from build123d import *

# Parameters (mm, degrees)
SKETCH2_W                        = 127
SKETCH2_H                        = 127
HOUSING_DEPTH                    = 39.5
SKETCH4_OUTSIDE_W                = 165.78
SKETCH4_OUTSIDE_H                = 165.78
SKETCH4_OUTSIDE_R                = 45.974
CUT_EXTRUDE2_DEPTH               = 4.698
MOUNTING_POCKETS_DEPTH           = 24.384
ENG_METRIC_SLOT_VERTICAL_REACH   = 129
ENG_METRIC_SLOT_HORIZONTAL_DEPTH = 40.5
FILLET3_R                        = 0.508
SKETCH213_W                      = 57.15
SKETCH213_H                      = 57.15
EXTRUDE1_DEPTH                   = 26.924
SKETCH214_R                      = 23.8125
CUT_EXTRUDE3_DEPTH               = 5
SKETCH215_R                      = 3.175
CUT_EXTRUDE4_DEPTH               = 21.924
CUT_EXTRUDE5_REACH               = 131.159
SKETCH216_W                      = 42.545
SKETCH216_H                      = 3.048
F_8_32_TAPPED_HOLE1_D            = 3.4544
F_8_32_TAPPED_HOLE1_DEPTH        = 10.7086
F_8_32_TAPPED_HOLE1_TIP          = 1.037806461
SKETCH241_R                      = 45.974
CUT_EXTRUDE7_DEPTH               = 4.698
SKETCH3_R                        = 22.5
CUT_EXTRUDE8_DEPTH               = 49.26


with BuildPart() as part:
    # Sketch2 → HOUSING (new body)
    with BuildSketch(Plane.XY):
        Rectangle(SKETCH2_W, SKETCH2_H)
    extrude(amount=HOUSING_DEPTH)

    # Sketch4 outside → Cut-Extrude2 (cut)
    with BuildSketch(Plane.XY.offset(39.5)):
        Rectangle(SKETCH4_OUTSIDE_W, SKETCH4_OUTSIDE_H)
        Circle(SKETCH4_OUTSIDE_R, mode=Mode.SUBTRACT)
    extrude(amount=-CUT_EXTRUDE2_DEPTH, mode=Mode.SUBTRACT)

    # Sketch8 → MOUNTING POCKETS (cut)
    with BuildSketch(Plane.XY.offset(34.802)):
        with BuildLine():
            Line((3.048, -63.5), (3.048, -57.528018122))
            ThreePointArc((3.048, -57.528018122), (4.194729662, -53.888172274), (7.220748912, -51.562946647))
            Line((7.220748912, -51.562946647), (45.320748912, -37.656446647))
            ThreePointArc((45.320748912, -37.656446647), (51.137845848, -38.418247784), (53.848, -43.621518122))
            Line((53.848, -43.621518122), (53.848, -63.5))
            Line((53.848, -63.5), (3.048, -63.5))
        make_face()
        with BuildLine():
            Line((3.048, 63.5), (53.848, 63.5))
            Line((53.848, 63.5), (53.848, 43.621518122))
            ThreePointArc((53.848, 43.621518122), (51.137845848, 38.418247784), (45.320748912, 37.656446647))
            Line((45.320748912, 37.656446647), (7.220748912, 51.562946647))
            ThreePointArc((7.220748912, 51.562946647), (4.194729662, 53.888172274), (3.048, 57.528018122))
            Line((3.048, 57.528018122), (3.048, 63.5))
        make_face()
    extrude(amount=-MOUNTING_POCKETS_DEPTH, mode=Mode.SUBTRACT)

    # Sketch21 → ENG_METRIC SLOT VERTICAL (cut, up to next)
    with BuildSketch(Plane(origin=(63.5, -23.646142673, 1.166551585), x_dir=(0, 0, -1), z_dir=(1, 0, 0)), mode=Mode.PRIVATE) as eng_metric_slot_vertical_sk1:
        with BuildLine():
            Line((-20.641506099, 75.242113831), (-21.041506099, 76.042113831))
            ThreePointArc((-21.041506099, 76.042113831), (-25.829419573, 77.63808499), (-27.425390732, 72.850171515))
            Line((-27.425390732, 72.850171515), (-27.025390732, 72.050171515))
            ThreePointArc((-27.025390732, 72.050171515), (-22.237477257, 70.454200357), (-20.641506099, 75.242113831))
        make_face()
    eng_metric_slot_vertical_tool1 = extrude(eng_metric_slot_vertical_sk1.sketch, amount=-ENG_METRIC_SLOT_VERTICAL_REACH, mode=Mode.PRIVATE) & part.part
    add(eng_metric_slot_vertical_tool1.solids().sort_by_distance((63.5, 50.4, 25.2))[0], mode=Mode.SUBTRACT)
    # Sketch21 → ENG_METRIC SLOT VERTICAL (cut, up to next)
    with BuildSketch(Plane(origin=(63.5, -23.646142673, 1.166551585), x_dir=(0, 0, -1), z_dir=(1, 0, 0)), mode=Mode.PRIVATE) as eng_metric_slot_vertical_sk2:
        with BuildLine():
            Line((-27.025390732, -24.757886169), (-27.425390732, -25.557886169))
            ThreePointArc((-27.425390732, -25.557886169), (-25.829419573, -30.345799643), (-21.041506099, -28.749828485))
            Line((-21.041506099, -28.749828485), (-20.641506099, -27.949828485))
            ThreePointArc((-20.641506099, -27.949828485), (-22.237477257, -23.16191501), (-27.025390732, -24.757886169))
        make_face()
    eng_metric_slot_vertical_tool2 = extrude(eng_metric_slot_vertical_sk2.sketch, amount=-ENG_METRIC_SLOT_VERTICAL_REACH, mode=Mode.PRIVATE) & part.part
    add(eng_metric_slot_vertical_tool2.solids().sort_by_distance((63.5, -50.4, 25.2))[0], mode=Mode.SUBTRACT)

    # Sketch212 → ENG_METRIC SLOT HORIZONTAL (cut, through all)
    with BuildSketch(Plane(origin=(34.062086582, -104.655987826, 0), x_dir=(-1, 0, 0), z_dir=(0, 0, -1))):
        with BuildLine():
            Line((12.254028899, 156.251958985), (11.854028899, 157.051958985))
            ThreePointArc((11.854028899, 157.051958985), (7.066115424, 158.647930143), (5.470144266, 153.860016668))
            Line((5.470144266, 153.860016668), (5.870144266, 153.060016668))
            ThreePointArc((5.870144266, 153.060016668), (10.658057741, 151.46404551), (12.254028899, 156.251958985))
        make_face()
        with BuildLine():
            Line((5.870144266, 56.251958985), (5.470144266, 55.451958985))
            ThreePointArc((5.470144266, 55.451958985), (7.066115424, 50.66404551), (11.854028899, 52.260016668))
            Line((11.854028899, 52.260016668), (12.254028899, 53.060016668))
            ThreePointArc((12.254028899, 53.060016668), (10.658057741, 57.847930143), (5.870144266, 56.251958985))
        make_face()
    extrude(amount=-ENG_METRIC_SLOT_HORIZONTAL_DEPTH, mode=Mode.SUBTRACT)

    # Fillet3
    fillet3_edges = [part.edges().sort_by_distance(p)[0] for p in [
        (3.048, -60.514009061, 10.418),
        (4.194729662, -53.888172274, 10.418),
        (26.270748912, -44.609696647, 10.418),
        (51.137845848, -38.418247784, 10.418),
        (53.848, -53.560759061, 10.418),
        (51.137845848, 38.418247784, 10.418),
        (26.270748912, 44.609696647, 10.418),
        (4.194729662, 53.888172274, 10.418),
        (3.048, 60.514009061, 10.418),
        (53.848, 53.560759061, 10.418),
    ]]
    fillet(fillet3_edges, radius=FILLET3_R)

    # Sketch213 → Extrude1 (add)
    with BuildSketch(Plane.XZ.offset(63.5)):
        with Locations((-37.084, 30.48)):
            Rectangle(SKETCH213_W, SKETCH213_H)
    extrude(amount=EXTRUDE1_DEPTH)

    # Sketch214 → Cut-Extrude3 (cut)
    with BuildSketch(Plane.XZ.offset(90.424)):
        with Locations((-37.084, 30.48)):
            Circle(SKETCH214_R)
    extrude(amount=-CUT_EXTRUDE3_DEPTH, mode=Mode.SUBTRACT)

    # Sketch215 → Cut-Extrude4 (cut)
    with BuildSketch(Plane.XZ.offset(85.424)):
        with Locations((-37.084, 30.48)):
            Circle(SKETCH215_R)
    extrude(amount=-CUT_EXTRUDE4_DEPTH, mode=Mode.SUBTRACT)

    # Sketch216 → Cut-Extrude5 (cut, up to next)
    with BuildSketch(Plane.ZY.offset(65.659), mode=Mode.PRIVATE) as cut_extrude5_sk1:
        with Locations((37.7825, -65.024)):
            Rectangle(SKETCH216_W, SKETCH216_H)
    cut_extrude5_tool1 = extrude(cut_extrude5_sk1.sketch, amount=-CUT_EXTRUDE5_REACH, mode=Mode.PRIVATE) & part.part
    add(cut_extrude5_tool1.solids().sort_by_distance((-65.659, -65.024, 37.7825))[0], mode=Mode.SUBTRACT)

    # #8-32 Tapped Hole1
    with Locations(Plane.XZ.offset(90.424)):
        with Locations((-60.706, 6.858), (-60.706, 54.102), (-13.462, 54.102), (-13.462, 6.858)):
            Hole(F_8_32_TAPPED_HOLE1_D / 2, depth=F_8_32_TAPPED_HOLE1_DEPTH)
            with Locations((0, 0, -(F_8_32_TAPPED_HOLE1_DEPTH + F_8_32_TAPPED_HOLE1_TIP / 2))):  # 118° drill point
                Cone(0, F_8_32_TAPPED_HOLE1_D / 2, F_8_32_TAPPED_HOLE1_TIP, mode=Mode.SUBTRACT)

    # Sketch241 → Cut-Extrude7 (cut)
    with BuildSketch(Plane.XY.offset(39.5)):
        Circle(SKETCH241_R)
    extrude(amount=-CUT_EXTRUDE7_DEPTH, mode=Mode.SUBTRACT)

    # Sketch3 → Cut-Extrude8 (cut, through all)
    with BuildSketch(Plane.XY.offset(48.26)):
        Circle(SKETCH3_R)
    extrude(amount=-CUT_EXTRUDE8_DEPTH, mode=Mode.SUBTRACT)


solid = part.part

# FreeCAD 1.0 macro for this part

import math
import FreeCAD as App
import Part
import Sketcher

V = App.Vector
Q = App.Units.Quantity


def edges_at(feature, points):
    """Names of the edges that pass closest to the given points."""
    edges = feature.Shape.Edges
    near = lambda p: min(range(len(edges)), key=lambda i: edges[i].distToShape(Part.Vertex(*p))[0])
    return sorted({f"Edge{near(p) + 1}" for p in points})

doc = App.newDocument("Part")
body = doc.addObject("PartDesign::Body", "Body")

# Sketch on XY plane
sketch1 = doc.addObject("Sketcher::SketchObject", "Sketch")
body.addObject(sketch1)
sketch1.AttachmentSupport = (doc.XY_Plane, [""])
sketch1.MapMode = "FlatFace"
sketch1.addGeometry([
    Part.LineSegment(V(-64, 64, 0), V(-64, -64, 0)),
    Part.LineSegment(V(-64, -64, 0), V(64, -64, 0)),
    Part.LineSegment(V(64, -64, 0), V(64, 64, 0)),
    Part.LineSegment(V(64, 64, 0), V(-64, 64, 0)),
], False)
sketch1.addConstraint([
    Sketcher.Constraint("Coincident", 0, 2, 1, 1),
    Sketcher.Constraint("Coincident", 1, 2, 2, 1),
    Sketcher.Constraint("Coincident", 2, 2, 3, 1),
    Sketcher.Constraint("Coincident", 3, 2, 0, 1),
    Sketcher.Constraint("Vertical", 0),
    Sketcher.Constraint("Horizontal", 1),
    Sketcher.Constraint("Vertical", 2),
    Sketcher.Constraint("Horizontal", 3),
    Sketcher.Constraint("Symmetric", 0, 2, 2, 2, -1, 1),
    Sketcher.Constraint("Equal", 3, 0),
    Sketcher.Constraint("DistanceX", 1, 1, 1, 2, Q("5 in")),
])
pad1 = doc.addObject("PartDesign::Pad", "Pad")
body.addObject(pad1)
pad1.Profile = sketch1
pad1.Length = 39.5

# Sketch on XY plane
sketch2 = doc.addObject("Sketcher::SketchObject", "Sketch001")
body.addObject(sketch2)
sketch2.AttachmentSupport = (doc.XY_Plane, [""])
sketch2.MapMode = "FlatFace"
sketch2.AttachmentOffset = App.Placement(V(0, 0, 39.5), App.Rotation())
sketch2.addGeometry([
    Part.LineSegment(V(-83, 83, 0), V(-83, -83, 0)),  # 0
    Part.LineSegment(V(-83, -83, 0), V(83, -83, 0)),  # 1
    Part.LineSegment(V(83, -83, 0), V(83, 83, 0)),  # 2
    Part.LineSegment(V(83, 83, 0), V(-83, 83, 0)),  # 3
    Part.Circle(V(0, 0, 0), V(0, 0, 1), 46),  # 4
], False)
sketch2.addConstraint([
    Sketcher.Constraint("Coincident", 0, 2, 1, 1),
    Sketcher.Constraint("Coincident", 1, 2, 2, 1),
    Sketcher.Constraint("Coincident", 2, 2, 3, 1),
    Sketcher.Constraint("Coincident", 3, 2, 0, 1),
    Sketcher.Constraint("Vertical", 0),
    Sketcher.Constraint("Horizontal", 1),
    Sketcher.Constraint("Vertical", 2),
    Sketcher.Constraint("Horizontal", 3),
    Sketcher.Constraint("Coincident", 4, 3, -1, 1),
    Sketcher.Constraint("Symmetric", 0, 2, 2, 2, -1, 1),
    Sketcher.Constraint("Equal", 3, 0),
    Sketcher.Constraint("Diameter", 4, Q("3.62 in")),
    Sketcher.Constraint("DistanceX", 1, 1, 1, 2, Q("165.78 mm")),
])
pocket1 = doc.addObject("PartDesign::Pocket", "Pocket")
body.addObject(pocket1)
pocket1.Profile = sketch2
pocket1.Length = 4.698

# Sketch on XY plane
sketch3 = doc.addObject("Sketcher::SketchObject", "Sketch002")
body.addObject(sketch3)
sketch3.AttachmentSupport = (doc.XY_Plane, [""])
sketch3.MapMode = "FlatFace"
sketch3.AttachmentOffset = App.Placement(V(0, 0, 34.802), App.Rotation())
sketch3.addGeometry([
    Part.LineSegment(V(3, -58, 0), V(3, -64, 0)),  # 0
    Part.LineSegment(V(3, -64, 0), V(54, -64, 0)),  # 1
    Part.LineSegment(V(54, -64, 0), V(54, -44, 0)),  # 2
    Part.ArcOfCircle(Part.Circle(V(47, -44, 0), V(0, 0, 1), 6), math.radians(0), math.radians(110)),  # 3
    Part.LineSegment(V(45, -38, 0), V(7, -52, 0)),  # 4
    Part.ArcOfCircle(Part.Circle(V(9, -58, 0), V(0, 0, 1), 6), math.radians(110), math.radians(180)),  # 5
    Part.LineSegment(V(54, 64, 0), V(3, 64, 0)),  # 6
    Part.LineSegment(V(3, 64, 0), V(3, 58, 0)),  # 7
    Part.ArcOfCircle(Part.Circle(V(9, 58, 0), V(0, 0, 1), 6), math.radians(180), math.radians(250)),  # 8
    Part.LineSegment(V(7, 52, 0), V(45, 38, 0)),  # 9
    Part.ArcOfCircle(Part.Circle(V(47, 44, 0), V(0, 0, 1), 6), math.radians(-110), math.radians(0)),  # 10
    Part.LineSegment(V(54, 44, 0), V(54, 64, 0)),  # 11
], False)
sketch3.addConstraint([
    Sketcher.Constraint("Coincident", 0, 2, 1, 1),
    Sketcher.Constraint("Coincident", 1, 2, 2, 1),
    Sketcher.Constraint("Tangent", 2, 2, 3, 1),
    Sketcher.Constraint("Tangent", 3, 2, 4, 1),
    Sketcher.Constraint("Tangent", 4, 2, 5, 1),
    Sketcher.Constraint("Tangent", 5, 2, 0, 1),
    Sketcher.Constraint("Coincident", 6, 2, 7, 1),
    Sketcher.Constraint("Tangent", 7, 2, 8, 1),
    Sketcher.Constraint("Tangent", 8, 2, 9, 1),
    Sketcher.Constraint("Tangent", 9, 2, 10, 1),
    Sketcher.Constraint("Tangent", 10, 2, 11, 1),
    Sketcher.Constraint("Coincident", 11, 2, 6, 1),
    Sketcher.Constraint("Vertical", 0),
    Sketcher.Constraint("Horizontal", 1),
    Sketcher.Constraint("Vertical", 2),
    Sketcher.Constraint("Horizontal", 6),
    Sketcher.Constraint("Vertical", 7),
    Sketcher.Constraint("Vertical", 11),
    Sketcher.Constraint("Equal", 3, 5),
    Sketcher.Constraint("Equal", 5, 8),
    Sketcher.Constraint("Equal", 8, 10),
    Sketcher.Constraint("Symmetric", 5, 3, 8, 3, -1),
    Sketcher.Constraint("Symmetric", 3, 3, 10, 3, -1),
    Sketcher.Constraint("Equal", 0, 7),
    Sketcher.Constraint("DistanceX", 1, 1, 1, 2, Q("2 in")),
    Sketcher.Constraint("Radius", 3, Q("0.25 in")),
    Sketcher.Constraint("DistanceY", 0, 2, -1, 1, Q("2.5 in")),
    Sketcher.Constraint("DistanceX", -1, 1, 3, 3, Q("1.87 in")),
    Sketcher.Constraint("DistanceY", 5, 3, 3, 3, Q("0.5475 in")),
    Sketcher.Constraint("DistanceY", 0, 2, 0, 1, Q("5.971982 mm")),
])
pocket2 = doc.addObject("PartDesign::Pocket", "Pocket001")
body.addObject(pocket2)
pocket2.Profile = sketch3
pocket2.Length = Q("0.96 in")

# Sketch on YZ plane
sketch4 = doc.addObject("Sketcher::SketchObject", "Sketch003")
body.addObject(sketch4)
sketch4.AttachmentSupport = (doc.YZ_Plane, [""])
sketch4.MapMode = "FlatFace"
sketch4.AttachmentOffset = App.Placement(V(0, 0, 2.5 * 25.4), App.Rotation())
sketch4.addGeometry([
    Part.LineSegment(V(51.6, 21.8, 0), V(52.4, 22.2, 0)),
    Part.ArcOfCircle(Part.Circle(V(50.8, 25.4, 0), V(0, 0, 1), 3.6), math.radians(-63), math.radians(117)),
    Part.LineSegment(V(49.2, 28.6, 0), V(48.4, 28.2, 0)),
    Part.ArcOfCircle(Part.Circle(V(50, 25, 0), V(0, 0, 1), 3.6), math.radians(117), math.radians(297)),
], False)
sketch4.addConstraint([
    Sketcher.Constraint("Tangent", 0, 2, 1, 1),
    Sketcher.Constraint("Tangent", 1, 2, 2, 1),
    Sketcher.Constraint("Tangent", 2, 2, 3, 1),
    Sketcher.Constraint("Tangent", 3, 2, 0, 1),
    Sketcher.Constraint("Equal", 1, 3),
    Sketcher.Constraint("DistanceX", -1, 1, 1, 3, Q("2 in")),
    Sketcher.Constraint("DistanceY", -1, 1, 1, 3, Q("1 in")),
    Sketcher.Constraint("Radius", 1, Q("0.1405 in")),
    Sketcher.Constraint("DistanceX", -1, 1, 3, 3, Q("50 mm")),
    Sketcher.Constraint("DistanceY", -1, 1, 3, 3, Q("25 mm")),
])
pocket3 = doc.addObject("PartDesign::Pocket", "Pocket002")
body.addObject(pocket3)
pocket3.Profile = sketch4
pocket3.Type = "UpToFirst"

# Sketch on YZ plane
sketch5 = doc.addObject("Sketcher::SketchObject", "Sketch004")
body.addObject(sketch5)
sketch5.AttachmentSupport = (doc.YZ_Plane, [""])
sketch5.MapMode = "FlatFace"
sketch5.AttachmentOffset = App.Placement(V(0, 0, 2.5 * 25.4), App.Rotation())
sketch5.addGeometry([
    Part.LineSegment(V(-48.4, 28.2, 0), V(-49.2, 28.6, 0)),
    Part.ArcOfCircle(Part.Circle(V(-50.8, 25.4, 0), V(0, 0, 1), 3.6), math.radians(63), math.radians(243)),
    Part.LineSegment(V(-52.4, 22.2, 0), V(-51.6, 21.8, 0)),
    Part.ArcOfCircle(Part.Circle(V(-50, 25, 0), V(0, 0, 1), 3.6), math.radians(-117), math.radians(63)),
], False)
sketch5.addConstraint([
    Sketcher.Constraint("Tangent", 0, 2, 1, 1),
    Sketcher.Constraint("Tangent", 1, 2, 2, 1),
    Sketcher.Constraint("Tangent", 2, 2, 3, 1),
    Sketcher.Constraint("Tangent", 3, 2, 0, 1),
    Sketcher.Constraint("Equal", 1, 3),
    Sketcher.Constraint("DistanceX", 1, 3, -1, 1, Q("2 in")),
    Sketcher.Constraint("DistanceY", -1, 1, 1, 3, Q("1 in")),
    Sketcher.Constraint("Radius", 1, Q("0.1405 in")),
    Sketcher.Constraint("DistanceX", 3, 3, -1, 1, Q("50 mm")),
    Sketcher.Constraint("DistanceY", -1, 1, 3, 3, Q("25 mm")),
])
pocket4 = doc.addObject("PartDesign::Pocket", "Pocket003")
body.addObject(pocket4)
pocket4.Profile = sketch5
pocket4.Type = "UpToFirst"

# Sketch on XY plane
sketch6 = doc.addObject("Sketcher::SketchObject", "Sketch005")
body.addObject(sketch6)
sketch6.AttachmentSupport = (doc.XY_Plane, [""])
sketch6.MapMode = "FlatFace"
sketch6.addGeometry([
    Part.LineSegment(V(21.8, 51.6, 0), V(22.2, 52.4, 0)),  # 0
    Part.ArcOfCircle(Part.Circle(V(25.4, 50.8, 0), V(0, 0, 1), 3.6), math.radians(-27), math.radians(153)),  # 1
    Part.LineSegment(V(28.6, 49.2, 0), V(28.2, 48.4, 0)),  # 2
    Part.ArcOfCircle(Part.Circle(V(25, 50, 0), V(0, 0, 1), 3.6), math.radians(153), math.radians(333)),  # 3
    Part.LineSegment(V(28.2, -48.4, 0), V(28.6, -49.2, 0)),  # 4
    Part.ArcOfCircle(Part.Circle(V(25.4, -50.8, 0), V(0, 0, 1), 3.6), math.radians(-153), math.radians(27)),  # 5
    Part.LineSegment(V(22.2, -52.4, 0), V(21.8, -51.6, 0)),  # 6
    Part.ArcOfCircle(Part.Circle(V(25, -50, 0), V(0, 0, 1), 3.6), math.radians(27), math.radians(207)),  # 7
], False)
sketch6.addConstraint([
    Sketcher.Constraint("Tangent", 0, 2, 1, 2),
    Sketcher.Constraint("Tangent", 1, 1, 2, 1),
    Sketcher.Constraint("Tangent", 2, 2, 3, 2),
    Sketcher.Constraint("Tangent", 3, 1, 0, 1),
    Sketcher.Constraint("Tangent", 4, 2, 5, 2),
    Sketcher.Constraint("Tangent", 5, 1, 6, 1),
    Sketcher.Constraint("Tangent", 6, 2, 7, 2),
    Sketcher.Constraint("Tangent", 7, 1, 4, 1),
    Sketcher.Constraint("Equal", 1, 3),
    Sketcher.Constraint("Equal", 3, 5),
    Sketcher.Constraint("Equal", 5, 7),
    Sketcher.Constraint("Symmetric", 1, 3, 5, 3, -1),
    Sketcher.Constraint("Symmetric", 3, 3, 7, 3, -1),
    Sketcher.Constraint("DistanceX", -1, 1, 1, 3, Q("1 in")),
    Sketcher.Constraint("DistanceY", -1, 1, 1, 3, Q("2 in")),
    Sketcher.Constraint("Radius", 1, Q("0.1405 in")),
    Sketcher.Constraint("DistanceX", -1, 1, 3, 3, Q("25 mm")),
    Sketcher.Constraint("DistanceY", -1, 1, 3, 3, Q("50 mm")),
])
pocket5 = doc.addObject("PartDesign::Pocket", "Pocket004")
body.addObject(pocket5)
pocket5.Profile = sketch6
pocket5.Type = "ThroughAll"
pocket5.Reversed = True
doc.recompute()

fillet = doc.addObject("PartDesign::Fillet", "Fillet")
body.addObject(fillet)
fillet.Base = (pocket5, edges_at(pocket5, [
    (3.048, -60.514, 10.418),
    (4.195, -53.888, 10.418),
    (26.271, -44.61, 10.418),
    (51.138, -38.418, 10.418),
    (53.848, -53.561, 10.418),
    (51.138, 38.418, 10.418),
    (26.271, 44.61, 10.418),
    (4.195, 53.888, 10.418),
    (3.048, 60.514, 10.418),
    (53.848, 53.561, 10.418),
]))
fillet.Radius = Q("0.02 in")

# Sketch on XZ plane
sketch7 = doc.addObject("Sketcher::SketchObject", "Sketch006")
body.addObject(sketch7)
sketch7.AttachmentSupport = (doc.XZ_Plane, [""])
sketch7.MapMode = "FlatFace"
sketch7.AttachmentOffset = App.Placement(V(0, 0, 2.5 * 25.4), App.Rotation())
sketch7.addGeometry([
    Part.LineSegment(V(-66, 59, 0), V(-66, 2, 0)),
    Part.LineSegment(V(-66, 2, 0), V(-9, 2, 0)),
    Part.LineSegment(V(-9, 2, 0), V(-9, 59, 0)),
    Part.LineSegment(V(-9, 59, 0), V(-66, 59, 0)),
], False)
sketch7.addConstraint([
    Sketcher.Constraint("Coincident", 0, 2, 1, 1),
    Sketcher.Constraint("Coincident", 1, 2, 2, 1),
    Sketcher.Constraint("Coincident", 2, 2, 3, 1),
    Sketcher.Constraint("Coincident", 3, 2, 0, 1),
    Sketcher.Constraint("Vertical", 0),
    Sketcher.Constraint("Horizontal", 1),
    Sketcher.Constraint("Vertical", 2),
    Sketcher.Constraint("Horizontal", 3),
    Sketcher.Constraint("Equal", 3, 0),
    Sketcher.Constraint("DistanceX", 1, 1, 1, 2, Q("2.25 in")),
    Sketcher.Constraint("DistanceX", 0, 2, -1, 1, Q("2.585 in")),
    Sketcher.Constraint("DistanceY", -1, 1, 0, 2, Q("0.075 in")),
])
pad2 = doc.addObject("PartDesign::Pad", "Pad001")
body.addObject(pad2)
pad2.Profile = sketch7
pad2.Length = Q("1.06 in")

# Sketch on XZ plane
sketch8 = doc.addObject("Sketcher::SketchObject", "Sketch007")
body.addObject(sketch8)
sketch8.AttachmentSupport = (doc.XZ_Plane, [""])
sketch8.MapMode = "FlatFace"
sketch8.AttachmentOffset = App.Placement(V(0, 0, 3.56 * 25.4), App.Rotation())
sketch8.addGeometry(Part.Circle(V(-37, 30, 0), V(0, 0, 1), 24), False)
sketch8.addConstraint([
    Sketcher.Constraint("Diameter", 0, Q("1.875 in")),
    Sketcher.Constraint("DistanceY", -1, 1, 0, 3, Q("1.2 in")),
    Sketcher.Constraint("DistanceX", 0, 3, -1, 1, Q("1.46 in")),
])
pocket6 = doc.addObject("PartDesign::Pocket", "Pocket005")
body.addObject(pocket6)
pocket6.Profile = sketch8
pocket6.Length = 5

# Sketch on XZ plane
sketch9 = doc.addObject("Sketcher::SketchObject", "Sketch008")
body.addObject(sketch9)
sketch9.AttachmentSupport = (doc.XZ_Plane, [""])
sketch9.MapMode = "FlatFace"
sketch9.AttachmentOffset = App.Placement(V(0, 0, 85.424), App.Rotation())
sketch9.addGeometry(Part.Circle(V(-37.1, 30.5, 0), V(0, 0, 1), 3.2), False)
sketch9.addConstraint([
    Sketcher.Constraint("Diameter", 0, Q("0.25 in")),
    Sketcher.Constraint("DistanceY", -1, 1, 0, 3, Q("1.2 in")),
    Sketcher.Constraint("DistanceX", 0, 3, -1, 1, Q("1.46 in")),
])
pocket7 = doc.addObject("PartDesign::Pocket", "Pocket006")
body.addObject(pocket7)
pocket7.Profile = sketch9
pocket7.Length = 21.924

# Sketch on YZ plane
sketch10 = doc.addObject("Sketcher::SketchObject", "Sketch009")
body.addObject(sketch10)
sketch10.AttachmentSupport = (doc.YZ_Plane, [""])
sketch10.MapMode = "FlatFace"
sketch10.AttachmentOffset = App.Placement(V(0, 0, -2.585 * 25.4), App.Rotation())
sketch10.addGeometry([
    Part.LineSegment(V(-63.5, 16.5, 0), V(-66.5, 16.5, 0)),
    Part.LineSegment(V(-66.5, 16.5, 0), V(-66.5, 59.1, 0)),
    Part.LineSegment(V(-66.5, 59.1, 0), V(-63.5, 59.1, 0)),
    Part.LineSegment(V(-63.5, 59.1, 0), V(-63.5, 16.5, 0)),
], False)
sketch10.addConstraint([
    Sketcher.Constraint("Coincident", 0, 2, 1, 1),
    Sketcher.Constraint("Coincident", 1, 2, 2, 1),
    Sketcher.Constraint("Coincident", 2, 2, 3, 1),
    Sketcher.Constraint("Coincident", 3, 2, 0, 1),
    Sketcher.Constraint("Horizontal", 0),
    Sketcher.Constraint("Vertical", 1),
    Sketcher.Constraint("Horizontal", 2),
    Sketcher.Constraint("Vertical", 3),
    Sketcher.Constraint("DistanceX", 0, 2, 0, 1, Q("0.12 in")),
    Sketcher.Constraint("DistanceX", 2, 2, -1, 1, Q("2.5 in")),
    Sketcher.Constraint("DistanceY", 1, 1, 1, 2, Q("1.675 in")),
    Sketcher.Constraint("DistanceY", -1, 1, 0, 2, Q("0.65 in")),
])
pocket8 = doc.addObject("PartDesign::Pocket", "Pocket007")
body.addObject(pocket8)
pocket8.Profile = sketch10
pocket8.Type = "UpToFirst"
pocket8.Reversed = True

# Sketch on XZ plane
sketch11 = doc.addObject("Sketcher::SketchObject", "Sketch010")
body.addObject(sketch11)
sketch11.AttachmentSupport = (doc.XZ_Plane, [""])
sketch11.MapMode = "FlatFace"
sketch11.AttachmentOffset = App.Placement(V(0, 0, 3.56 * 25.4), App.Rotation())
sketch11.addGeometry([
    Part.Circle(V(-60.7, 6.9, 0), V(0, 0, 1), 1.7),
    Part.Circle(V(-60.7, 54.1, 0), V(0, 0, 1), 1.7),
    Part.Circle(V(-13.5, 54.1, 0), V(0, 0, 1), 1.7),
    Part.Circle(V(-13.5, 6.9, 0), V(0, 0, 1), 1.7),
], False)
sketch11.addConstraint([
    Sketcher.Constraint("Equal", 0, 1),
    Sketcher.Constraint("Equal", 1, 2),
    Sketcher.Constraint("Equal", 2, 3),
    Sketcher.Constraint("Horizontal", 1, 3, 2, 3),
    Sketcher.Constraint("Horizontal", 0, 3, 3, 3),
    Sketcher.Constraint("Vertical", 0, 3, 1, 3),
    Sketcher.Constraint("Vertical", 2, 3, 3, 3),
    Sketcher.Constraint("Diameter", 0, Q("0.136 in")),
    Sketcher.Constraint("DistanceX", 0, 3, -1, 1, Q("2.39 in")),
    Sketcher.Constraint("DistanceY", -1, 1, 0, 3, Q("0.27 in")),
    Sketcher.Constraint("DistanceY", -1, 1, 1, 3, Q("2.13 in")),
    Sketcher.Constraint("DistanceX", 2, 3, -1, 1, Q("0.53 in")),
])
doc.recompute()
hole = doc.addObject("PartDesign::Hole", "Hole")
body.addObject(hole)
hole.Profile = sketch11
hole.ThreadType = "None"
hole.Diameter = Q("0.136 in")
hole.DepthType = "Dimension"
hole.Depth = 10.7086
hole.DrillPoint = "Angled"
hole.DrillPointAngle = 118

# Sketch on XY plane
sketch12 = doc.addObject("Sketcher::SketchObject", "Sketch011")
body.addObject(sketch12)
sketch12.AttachmentSupport = (doc.XY_Plane, [""])
sketch12.MapMode = "FlatFace"
sketch12.AttachmentOffset = App.Placement(V(0, 0, 39.5), App.Rotation())
sketch12.addGeometry(Part.Circle(V(0, 0, 0), V(0, 0, 1), 46), False)
sketch12.addConstraint([
    Sketcher.Constraint("Coincident", 0, 3, -1, 1),
    Sketcher.Constraint("Diameter", 0, Q("3.62 in")),
])
pocket9 = doc.addObject("PartDesign::Pocket", "Pocket008")
body.addObject(pocket9)
pocket9.Profile = sketch12
pocket9.Length = 4.698

# Sketch on XY plane
sketch13 = doc.addObject("Sketcher::SketchObject", "Sketch012")
body.addObject(sketch13)
sketch13.AttachmentSupport = (doc.XY_Plane, [""])
sketch13.MapMode = "FlatFace"
sketch13.AttachmentOffset = App.Placement(V(0, 0, 1.9 * 25.4), App.Rotation())
sketch13.addGeometry(Part.Circle(V(0, 0, 0), V(0, 0, 1), 22), False)
sketch13.addConstraint([
    Sketcher.Constraint("Coincident", 0, 3, -1, 1),
    Sketcher.Constraint("Diameter", 0, Q("45 mm")),
])
pocket10 = doc.addObject("PartDesign::Pocket", "Pocket009")
body.addObject(pocket10)
pocket10.Profile = sketch13
pocket10.Type = "ThroughAll"

doc.recompute()
